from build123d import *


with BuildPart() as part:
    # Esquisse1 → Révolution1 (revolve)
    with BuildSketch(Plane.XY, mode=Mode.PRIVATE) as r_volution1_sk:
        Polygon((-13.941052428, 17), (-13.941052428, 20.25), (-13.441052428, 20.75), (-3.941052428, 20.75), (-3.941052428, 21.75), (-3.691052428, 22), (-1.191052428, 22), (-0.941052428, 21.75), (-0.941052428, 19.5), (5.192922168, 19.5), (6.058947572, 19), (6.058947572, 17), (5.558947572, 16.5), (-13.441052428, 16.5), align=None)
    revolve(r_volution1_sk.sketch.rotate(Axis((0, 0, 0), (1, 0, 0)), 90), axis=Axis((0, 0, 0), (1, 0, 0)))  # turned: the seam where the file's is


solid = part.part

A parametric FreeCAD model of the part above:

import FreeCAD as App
import Part
import Sketcher
Q = App.Units.Quantity

doc = App.newDocument("Part")
body = doc.addObject("PartDesign::Body", "Body")

sketch1 = doc.addObject("Sketcher::SketchObject", "Sketch")
body.addObject(sketch1)
sketch1.AttachmentSupport = (doc.XY_Plane, [""])
sketch1.MapMode = "FlatFace"
sketch1.addGeometry([
    Part.LineSegment(App.Vector(-13.941052, 20.25, 0), App.Vector(-13.941052, 17, 0)),
    Part.LineSegment(App.Vector(-13.941052, 17, 0), App.Vector(-13.441052, 16.5, 0)),
    Part.LineSegment(App.Vector(-13.441052, 16.5, 0), App.Vector(5.558948, 16.5, 0)),
    Part.LineSegment(App.Vector(5.558948, 16.5, 0), App.Vector(6.058948, 17, 0)),
    Part.LineSegment(App.Vector(6.058948, 17, 0), App.Vector(6.058948, 19, 0)),
    Part.LineSegment(App.Vector(6.058948, 19, 0), App.Vector(5.192922, 19.5, 0)),
    Part.LineSegment(App.Vector(5.192922, 19.5, 0), App.Vector(-0.941052, 19.5, 0)),
    Part.LineSegment(App.Vector(-0.941052, 19.5, 0), App.Vector(-0.941052, 21.75, 0)),
    Part.LineSegment(App.Vector(-0.941052, 21.75, 0), App.Vector(-1.191052, 22, 0)),
    Part.LineSegment(App.Vector(-1.191052, 22, 0), App.Vector(-3.691052, 22, 0)),
    Part.LineSegment(App.Vector(-3.691052, 22, 0), App.Vector(-3.941052, 21.75, 0)),
    Part.LineSegment(App.Vector(-3.941052, 21.75, 0), App.Vector(-3.941052, 20.75, 0)),
    Part.LineSegment(App.Vector(-3.941052, 20.75, 0), App.Vector(-13.441052, 20.75, 0)),
    Part.LineSegment(App.Vector(-13.441052, 20.75, 0), App.Vector(-13.941052, 20.25, 0)),
], False)
sketch1.addConstraint([
    Sketcher.Constraint("Coincident", 0, 2, 1, 1),
    Sketcher.Constraint("Coincident", 1, 2, 2, 1),
    Sketcher.Constraint("Coincident", 2, 2, 3, 1),
    Sketcher.Constraint("Coincident", 3, 2, 4, 1),
    Sketcher.Constraint("Coincident", 4, 2, 5, 1),
    Sketcher.Constraint("Coincident", 5, 2, 6, 1),
    Sketcher.Constraint("Coincident", 6, 2, 7, 1),
    Sketcher.Constraint("Coincident", 7, 2, 8, 1),
    Sketcher.Constraint("Coincident", 8, 2, 9, 1),
    Sketcher.Constraint("Coincident", 9, 2, 10, 1),
    Sketcher.Constraint("Coincident", 10, 2, 11, 1),
    Sketcher.Constraint("Coincident", 11, 2, 12, 1),
    Sketcher.Constraint("Coincident", 12, 2, 13, 1),
    Sketcher.Constraint("Coincident", 13, 2, 0, 1),
    Sketcher.Constraint("Vertical", 0),
    Sketcher.Constraint("Horizontal", 2),
    Sketcher.Constraint("Vertical", 4),
    Sketcher.Constraint("Horizontal", 6),
    Sketcher.Constraint("Vertical", 7),
    Sketcher.Constraint("Horizontal", 9),
    Sketcher.Constraint("Vertical", 11),
    Sketcher.Constraint("Horizontal", 12),
    Sketcher.Constraint("Perpendicular", 1, 3),
    Sketcher.Constraint("Perpendicular", 3, 8),
    Sketcher.Constraint("Perpendicular", 8, 10),
    Sketcher.Constraint("Parallel", 10, 13),
    Sketcher.Constraint("Horizontal", 0, 2, 3, 2),
    Sketcher.Constraint("Horizontal", 7, 2, 10, 2),
    Sketcher.Constraint("Vertical", 1, 2, 12, 2),
    Sketcher.Constraint("Equal", 1, 3),
    Sketcher.Constraint("DistanceX", 2, 1, 2, 2, 19.0),
    Sketcher.Constraint("DistanceY", 4, 1, 4, 2, 2.0),
    Sketcher.Constraint("DistanceY", 11, 2, 11, 1, 1.0),
    Sketcher.Constraint("Angle", 5, Q("150 deg")),
    Sketcher.Constraint("Distance", 5, 1.0),
    Sketcher.Constraint("DistanceX", 9, 2, 9, 1, 2.5),
    Sketcher.Constraint("DistanceX", 12, 2, 12, 1, 9.5),
    Sketcher.Constraint("DistanceY", -1, 1, 0, 2, 17.0),
    Sketcher.Constraint("DistanceY", -1, 1, 8, 2, 22.0),
    Sketcher.Constraint("DistanceX", 0, 2, 3, 2, 20.0),
    Sketcher.Constraint("DistanceX", 6, 2, 4, 2, 7.0),
    Sketcher.Constraint("DistanceX", 0, 2, -1, 1, 13.941052),
])
revolution = doc.addObject("PartDesign::Revolution", "Revolution")
body.addObject(revolution)
revolution.Profile = sketch1
revolution.ReferenceAxis = (sketch1, ["H_Axis"])
revolution.Angle = 360

doc.recompute()
